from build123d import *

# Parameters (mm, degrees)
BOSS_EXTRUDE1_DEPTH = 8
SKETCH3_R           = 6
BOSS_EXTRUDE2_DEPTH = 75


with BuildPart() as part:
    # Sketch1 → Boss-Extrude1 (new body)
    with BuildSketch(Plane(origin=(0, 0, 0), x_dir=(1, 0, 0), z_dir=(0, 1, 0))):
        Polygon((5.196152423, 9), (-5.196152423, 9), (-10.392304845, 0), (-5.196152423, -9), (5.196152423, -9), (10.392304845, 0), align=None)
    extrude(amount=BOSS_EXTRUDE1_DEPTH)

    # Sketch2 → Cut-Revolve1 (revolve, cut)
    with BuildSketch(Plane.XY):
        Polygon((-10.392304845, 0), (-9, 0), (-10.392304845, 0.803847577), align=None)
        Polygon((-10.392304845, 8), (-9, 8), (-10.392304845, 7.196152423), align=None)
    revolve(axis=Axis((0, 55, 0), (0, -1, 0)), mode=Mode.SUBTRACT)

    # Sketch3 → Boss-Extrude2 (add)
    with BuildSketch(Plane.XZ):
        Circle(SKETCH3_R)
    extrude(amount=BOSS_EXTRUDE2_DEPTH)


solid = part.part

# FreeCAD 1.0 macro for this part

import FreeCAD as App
import Part
import Sketcher
Q = App.Units.Quantity

doc = App.newDocument("Part")
body = doc.addObject("PartDesign::Body", "Body")

# Sketch on XZ plane
sketch1 = doc.addObject("Sketcher::SketchObject", "Sketch")
body.addObject(sketch1)
sketch1.AttachmentSupport = (doc.XZ_Plane, [""])
sketch1.MapMode = "FlatFace"
sketch1.addGeometry([
    Part.LineSegment(App.Vector(5, -9, 0), App.Vector(-5, -9, 0)),  # 0
    Part.LineSegment(App.Vector(-5, -9, 0), App.Vector(-10, 0, 0)),  # 1
    Part.LineSegment(App.Vector(-10, 0, 0), App.Vector(-5, 9, 0)),  # 2
    Part.LineSegment(App.Vector(-5, 9, 0), App.Vector(5, 9, 0)),  # 3
    Part.LineSegment(App.Vector(5, 9, 0), App.Vector(10, 0, 0)),  # 4
    Part.LineSegment(App.Vector(10, 0, 0), App.Vector(5, -9, 0)),  # 5
], False)
sketch1.addConstraint([
    Sketcher.Constraint("Coincident", 0, 2, 1, 1),
    Sketcher.Constraint("Coincident", 1, 2, 2, 1),
    Sketcher.Constraint("Coincident", 2, 2, 3, 1),
    Sketcher.Constraint("Coincident", 3, 2, 4, 1),
    Sketcher.Constraint("Coincident", 4, 2, 5, 1),
    Sketcher.Constraint("Coincident", 5, 2, 0, 1),
    Sketcher.Constraint("Horizontal", 0),
    Sketcher.Constraint("Horizontal", 3),
    Sketcher.Constraint("Symmetric", 0, 2, 3, 2, -1, 1),
    Sketcher.Constraint("Symmetric", 1, 2, 4, 2, -1, 1),
    Sketcher.Constraint("PointOnObject", 1, 2, -1),
    Sketcher.Constraint("Parallel", 2, 5),
    Sketcher.Constraint("Vertical", 0, 2, 2, 2),
    Sketcher.Constraint("Angle", 1, Q("120 deg")),
    Sketcher.Constraint("DistanceY", 0, 2, -1, 1, Q("9 mm")),
    Sketcher.Constraint("DistanceX", 0, 2, 0, 1, Q("10.392305 mm")),
])
pad1 = doc.addObject("PartDesign::Pad", "Pad")
body.addObject(pad1)
pad1.Profile = sketch1
pad1.Length = 8
pad1.Reversed = True

# Sketch on XY plane
sketch2 = doc.addObject("Sketcher::SketchObject", "Sketch001")
body.addObject(sketch2)
sketch2.AttachmentSupport = (doc.XY_Plane, [""])
sketch2.MapMode = "FlatFace"
sketch2.addGeometry([
    Part.LineSegment(App.Vector(-10.4, 0, 0), App.Vector(-9, 0, 0)),  # 0
    Part.LineSegment(App.Vector(-9, 0, 0), App.Vector(-10.4, 0.8, 0)),  # 1
    Part.LineSegment(App.Vector(-10.4, 0.8, 0), App.Vector(-10.4, 0, 0)),  # 2
    Part.LineSegment(App.Vector(-9, 8, 0), App.Vector(-10.4, 8, 0)),  # 3
    Part.LineSegment(App.Vector(-10.4, 8, 0), App.Vector(-10.4, 7.2, 0)),  # 4
    Part.LineSegment(App.Vector(-10.4, 7.2, 0), App.Vector(-9, 8, 0)),  # 5
], False)
sketch2.addConstraint([
    Sketcher.Constraint("Coincident", 0, 2, 1, 1),
    Sketcher.Constraint("Coincident", 1, 2, 2, 1),
    Sketcher.Constraint("Coincident", 2, 2, 0, 1),
    Sketcher.Constraint("Coincident", 3, 2, 4, 1),
    Sketcher.Constraint("Coincident", 4, 2, 5, 1),
    Sketcher.Constraint("Coincident", 5, 2, 3, 1),
    Sketcher.Constraint("Horizontal", 0),
    Sketcher.Constraint("Vertical", 2),
    Sketcher.Constraint("Horizontal", 3),
    Sketcher.Constraint("Vertical", 4),
    Sketcher.Constraint("PointOnObject", 0, 2, -1),
    Sketcher.Constraint("Vertical", 2, 2, 3, 2),
    Sketcher.Constraint("Vertical", 0, 2, 5, 2),
    Sketcher.Constraint("Equal", 2, 4),
    Sketcher.Constraint("Angle", 1, Q("150 deg")),
    Sketcher.Constraint("DistanceX", 0, 2, -1, 1, Q("9 mm")),
    Sketcher.Constraint("DistanceY", -1, 1, 3, 2, Q("8 mm")),
    Sketcher.Constraint("DistanceX", 0, 1, 0, 2, Q("1.392305 mm")),
])
groove = doc.addObject("PartDesign::Groove", "Groove")
body.addObject(groove)
groove.Profile = sketch2
groove.ReferenceAxis = (sketch2, ["V_Axis"])
groove.Angle = 360

# Sketch on XZ plane
sketch3 = doc.addObject("Sketcher::SketchObject", "Sketch002")
body.addObject(sketch3)
sketch3.AttachmentSupport = (doc.XZ_Plane, [""])
sketch3.MapMode = "FlatFace"
sketch3.addGeometry(Part.Circle(App.Vector(0, 0, 0), App.Vector(0, 0, 1), 6), False)
sketch3.addConstraint([
    Sketcher.Constraint("Coincident", 0, 3, -1, 1),
    Sketcher.Constraint("Diameter", 0, Q("12 mm")),
])
pad2 = doc.addObject("PartDesign::Pad", "Pad001")
body.addObject(pad2)
pad2.Profile = sketch3
pad2.Length = 75

doc.recompute()
